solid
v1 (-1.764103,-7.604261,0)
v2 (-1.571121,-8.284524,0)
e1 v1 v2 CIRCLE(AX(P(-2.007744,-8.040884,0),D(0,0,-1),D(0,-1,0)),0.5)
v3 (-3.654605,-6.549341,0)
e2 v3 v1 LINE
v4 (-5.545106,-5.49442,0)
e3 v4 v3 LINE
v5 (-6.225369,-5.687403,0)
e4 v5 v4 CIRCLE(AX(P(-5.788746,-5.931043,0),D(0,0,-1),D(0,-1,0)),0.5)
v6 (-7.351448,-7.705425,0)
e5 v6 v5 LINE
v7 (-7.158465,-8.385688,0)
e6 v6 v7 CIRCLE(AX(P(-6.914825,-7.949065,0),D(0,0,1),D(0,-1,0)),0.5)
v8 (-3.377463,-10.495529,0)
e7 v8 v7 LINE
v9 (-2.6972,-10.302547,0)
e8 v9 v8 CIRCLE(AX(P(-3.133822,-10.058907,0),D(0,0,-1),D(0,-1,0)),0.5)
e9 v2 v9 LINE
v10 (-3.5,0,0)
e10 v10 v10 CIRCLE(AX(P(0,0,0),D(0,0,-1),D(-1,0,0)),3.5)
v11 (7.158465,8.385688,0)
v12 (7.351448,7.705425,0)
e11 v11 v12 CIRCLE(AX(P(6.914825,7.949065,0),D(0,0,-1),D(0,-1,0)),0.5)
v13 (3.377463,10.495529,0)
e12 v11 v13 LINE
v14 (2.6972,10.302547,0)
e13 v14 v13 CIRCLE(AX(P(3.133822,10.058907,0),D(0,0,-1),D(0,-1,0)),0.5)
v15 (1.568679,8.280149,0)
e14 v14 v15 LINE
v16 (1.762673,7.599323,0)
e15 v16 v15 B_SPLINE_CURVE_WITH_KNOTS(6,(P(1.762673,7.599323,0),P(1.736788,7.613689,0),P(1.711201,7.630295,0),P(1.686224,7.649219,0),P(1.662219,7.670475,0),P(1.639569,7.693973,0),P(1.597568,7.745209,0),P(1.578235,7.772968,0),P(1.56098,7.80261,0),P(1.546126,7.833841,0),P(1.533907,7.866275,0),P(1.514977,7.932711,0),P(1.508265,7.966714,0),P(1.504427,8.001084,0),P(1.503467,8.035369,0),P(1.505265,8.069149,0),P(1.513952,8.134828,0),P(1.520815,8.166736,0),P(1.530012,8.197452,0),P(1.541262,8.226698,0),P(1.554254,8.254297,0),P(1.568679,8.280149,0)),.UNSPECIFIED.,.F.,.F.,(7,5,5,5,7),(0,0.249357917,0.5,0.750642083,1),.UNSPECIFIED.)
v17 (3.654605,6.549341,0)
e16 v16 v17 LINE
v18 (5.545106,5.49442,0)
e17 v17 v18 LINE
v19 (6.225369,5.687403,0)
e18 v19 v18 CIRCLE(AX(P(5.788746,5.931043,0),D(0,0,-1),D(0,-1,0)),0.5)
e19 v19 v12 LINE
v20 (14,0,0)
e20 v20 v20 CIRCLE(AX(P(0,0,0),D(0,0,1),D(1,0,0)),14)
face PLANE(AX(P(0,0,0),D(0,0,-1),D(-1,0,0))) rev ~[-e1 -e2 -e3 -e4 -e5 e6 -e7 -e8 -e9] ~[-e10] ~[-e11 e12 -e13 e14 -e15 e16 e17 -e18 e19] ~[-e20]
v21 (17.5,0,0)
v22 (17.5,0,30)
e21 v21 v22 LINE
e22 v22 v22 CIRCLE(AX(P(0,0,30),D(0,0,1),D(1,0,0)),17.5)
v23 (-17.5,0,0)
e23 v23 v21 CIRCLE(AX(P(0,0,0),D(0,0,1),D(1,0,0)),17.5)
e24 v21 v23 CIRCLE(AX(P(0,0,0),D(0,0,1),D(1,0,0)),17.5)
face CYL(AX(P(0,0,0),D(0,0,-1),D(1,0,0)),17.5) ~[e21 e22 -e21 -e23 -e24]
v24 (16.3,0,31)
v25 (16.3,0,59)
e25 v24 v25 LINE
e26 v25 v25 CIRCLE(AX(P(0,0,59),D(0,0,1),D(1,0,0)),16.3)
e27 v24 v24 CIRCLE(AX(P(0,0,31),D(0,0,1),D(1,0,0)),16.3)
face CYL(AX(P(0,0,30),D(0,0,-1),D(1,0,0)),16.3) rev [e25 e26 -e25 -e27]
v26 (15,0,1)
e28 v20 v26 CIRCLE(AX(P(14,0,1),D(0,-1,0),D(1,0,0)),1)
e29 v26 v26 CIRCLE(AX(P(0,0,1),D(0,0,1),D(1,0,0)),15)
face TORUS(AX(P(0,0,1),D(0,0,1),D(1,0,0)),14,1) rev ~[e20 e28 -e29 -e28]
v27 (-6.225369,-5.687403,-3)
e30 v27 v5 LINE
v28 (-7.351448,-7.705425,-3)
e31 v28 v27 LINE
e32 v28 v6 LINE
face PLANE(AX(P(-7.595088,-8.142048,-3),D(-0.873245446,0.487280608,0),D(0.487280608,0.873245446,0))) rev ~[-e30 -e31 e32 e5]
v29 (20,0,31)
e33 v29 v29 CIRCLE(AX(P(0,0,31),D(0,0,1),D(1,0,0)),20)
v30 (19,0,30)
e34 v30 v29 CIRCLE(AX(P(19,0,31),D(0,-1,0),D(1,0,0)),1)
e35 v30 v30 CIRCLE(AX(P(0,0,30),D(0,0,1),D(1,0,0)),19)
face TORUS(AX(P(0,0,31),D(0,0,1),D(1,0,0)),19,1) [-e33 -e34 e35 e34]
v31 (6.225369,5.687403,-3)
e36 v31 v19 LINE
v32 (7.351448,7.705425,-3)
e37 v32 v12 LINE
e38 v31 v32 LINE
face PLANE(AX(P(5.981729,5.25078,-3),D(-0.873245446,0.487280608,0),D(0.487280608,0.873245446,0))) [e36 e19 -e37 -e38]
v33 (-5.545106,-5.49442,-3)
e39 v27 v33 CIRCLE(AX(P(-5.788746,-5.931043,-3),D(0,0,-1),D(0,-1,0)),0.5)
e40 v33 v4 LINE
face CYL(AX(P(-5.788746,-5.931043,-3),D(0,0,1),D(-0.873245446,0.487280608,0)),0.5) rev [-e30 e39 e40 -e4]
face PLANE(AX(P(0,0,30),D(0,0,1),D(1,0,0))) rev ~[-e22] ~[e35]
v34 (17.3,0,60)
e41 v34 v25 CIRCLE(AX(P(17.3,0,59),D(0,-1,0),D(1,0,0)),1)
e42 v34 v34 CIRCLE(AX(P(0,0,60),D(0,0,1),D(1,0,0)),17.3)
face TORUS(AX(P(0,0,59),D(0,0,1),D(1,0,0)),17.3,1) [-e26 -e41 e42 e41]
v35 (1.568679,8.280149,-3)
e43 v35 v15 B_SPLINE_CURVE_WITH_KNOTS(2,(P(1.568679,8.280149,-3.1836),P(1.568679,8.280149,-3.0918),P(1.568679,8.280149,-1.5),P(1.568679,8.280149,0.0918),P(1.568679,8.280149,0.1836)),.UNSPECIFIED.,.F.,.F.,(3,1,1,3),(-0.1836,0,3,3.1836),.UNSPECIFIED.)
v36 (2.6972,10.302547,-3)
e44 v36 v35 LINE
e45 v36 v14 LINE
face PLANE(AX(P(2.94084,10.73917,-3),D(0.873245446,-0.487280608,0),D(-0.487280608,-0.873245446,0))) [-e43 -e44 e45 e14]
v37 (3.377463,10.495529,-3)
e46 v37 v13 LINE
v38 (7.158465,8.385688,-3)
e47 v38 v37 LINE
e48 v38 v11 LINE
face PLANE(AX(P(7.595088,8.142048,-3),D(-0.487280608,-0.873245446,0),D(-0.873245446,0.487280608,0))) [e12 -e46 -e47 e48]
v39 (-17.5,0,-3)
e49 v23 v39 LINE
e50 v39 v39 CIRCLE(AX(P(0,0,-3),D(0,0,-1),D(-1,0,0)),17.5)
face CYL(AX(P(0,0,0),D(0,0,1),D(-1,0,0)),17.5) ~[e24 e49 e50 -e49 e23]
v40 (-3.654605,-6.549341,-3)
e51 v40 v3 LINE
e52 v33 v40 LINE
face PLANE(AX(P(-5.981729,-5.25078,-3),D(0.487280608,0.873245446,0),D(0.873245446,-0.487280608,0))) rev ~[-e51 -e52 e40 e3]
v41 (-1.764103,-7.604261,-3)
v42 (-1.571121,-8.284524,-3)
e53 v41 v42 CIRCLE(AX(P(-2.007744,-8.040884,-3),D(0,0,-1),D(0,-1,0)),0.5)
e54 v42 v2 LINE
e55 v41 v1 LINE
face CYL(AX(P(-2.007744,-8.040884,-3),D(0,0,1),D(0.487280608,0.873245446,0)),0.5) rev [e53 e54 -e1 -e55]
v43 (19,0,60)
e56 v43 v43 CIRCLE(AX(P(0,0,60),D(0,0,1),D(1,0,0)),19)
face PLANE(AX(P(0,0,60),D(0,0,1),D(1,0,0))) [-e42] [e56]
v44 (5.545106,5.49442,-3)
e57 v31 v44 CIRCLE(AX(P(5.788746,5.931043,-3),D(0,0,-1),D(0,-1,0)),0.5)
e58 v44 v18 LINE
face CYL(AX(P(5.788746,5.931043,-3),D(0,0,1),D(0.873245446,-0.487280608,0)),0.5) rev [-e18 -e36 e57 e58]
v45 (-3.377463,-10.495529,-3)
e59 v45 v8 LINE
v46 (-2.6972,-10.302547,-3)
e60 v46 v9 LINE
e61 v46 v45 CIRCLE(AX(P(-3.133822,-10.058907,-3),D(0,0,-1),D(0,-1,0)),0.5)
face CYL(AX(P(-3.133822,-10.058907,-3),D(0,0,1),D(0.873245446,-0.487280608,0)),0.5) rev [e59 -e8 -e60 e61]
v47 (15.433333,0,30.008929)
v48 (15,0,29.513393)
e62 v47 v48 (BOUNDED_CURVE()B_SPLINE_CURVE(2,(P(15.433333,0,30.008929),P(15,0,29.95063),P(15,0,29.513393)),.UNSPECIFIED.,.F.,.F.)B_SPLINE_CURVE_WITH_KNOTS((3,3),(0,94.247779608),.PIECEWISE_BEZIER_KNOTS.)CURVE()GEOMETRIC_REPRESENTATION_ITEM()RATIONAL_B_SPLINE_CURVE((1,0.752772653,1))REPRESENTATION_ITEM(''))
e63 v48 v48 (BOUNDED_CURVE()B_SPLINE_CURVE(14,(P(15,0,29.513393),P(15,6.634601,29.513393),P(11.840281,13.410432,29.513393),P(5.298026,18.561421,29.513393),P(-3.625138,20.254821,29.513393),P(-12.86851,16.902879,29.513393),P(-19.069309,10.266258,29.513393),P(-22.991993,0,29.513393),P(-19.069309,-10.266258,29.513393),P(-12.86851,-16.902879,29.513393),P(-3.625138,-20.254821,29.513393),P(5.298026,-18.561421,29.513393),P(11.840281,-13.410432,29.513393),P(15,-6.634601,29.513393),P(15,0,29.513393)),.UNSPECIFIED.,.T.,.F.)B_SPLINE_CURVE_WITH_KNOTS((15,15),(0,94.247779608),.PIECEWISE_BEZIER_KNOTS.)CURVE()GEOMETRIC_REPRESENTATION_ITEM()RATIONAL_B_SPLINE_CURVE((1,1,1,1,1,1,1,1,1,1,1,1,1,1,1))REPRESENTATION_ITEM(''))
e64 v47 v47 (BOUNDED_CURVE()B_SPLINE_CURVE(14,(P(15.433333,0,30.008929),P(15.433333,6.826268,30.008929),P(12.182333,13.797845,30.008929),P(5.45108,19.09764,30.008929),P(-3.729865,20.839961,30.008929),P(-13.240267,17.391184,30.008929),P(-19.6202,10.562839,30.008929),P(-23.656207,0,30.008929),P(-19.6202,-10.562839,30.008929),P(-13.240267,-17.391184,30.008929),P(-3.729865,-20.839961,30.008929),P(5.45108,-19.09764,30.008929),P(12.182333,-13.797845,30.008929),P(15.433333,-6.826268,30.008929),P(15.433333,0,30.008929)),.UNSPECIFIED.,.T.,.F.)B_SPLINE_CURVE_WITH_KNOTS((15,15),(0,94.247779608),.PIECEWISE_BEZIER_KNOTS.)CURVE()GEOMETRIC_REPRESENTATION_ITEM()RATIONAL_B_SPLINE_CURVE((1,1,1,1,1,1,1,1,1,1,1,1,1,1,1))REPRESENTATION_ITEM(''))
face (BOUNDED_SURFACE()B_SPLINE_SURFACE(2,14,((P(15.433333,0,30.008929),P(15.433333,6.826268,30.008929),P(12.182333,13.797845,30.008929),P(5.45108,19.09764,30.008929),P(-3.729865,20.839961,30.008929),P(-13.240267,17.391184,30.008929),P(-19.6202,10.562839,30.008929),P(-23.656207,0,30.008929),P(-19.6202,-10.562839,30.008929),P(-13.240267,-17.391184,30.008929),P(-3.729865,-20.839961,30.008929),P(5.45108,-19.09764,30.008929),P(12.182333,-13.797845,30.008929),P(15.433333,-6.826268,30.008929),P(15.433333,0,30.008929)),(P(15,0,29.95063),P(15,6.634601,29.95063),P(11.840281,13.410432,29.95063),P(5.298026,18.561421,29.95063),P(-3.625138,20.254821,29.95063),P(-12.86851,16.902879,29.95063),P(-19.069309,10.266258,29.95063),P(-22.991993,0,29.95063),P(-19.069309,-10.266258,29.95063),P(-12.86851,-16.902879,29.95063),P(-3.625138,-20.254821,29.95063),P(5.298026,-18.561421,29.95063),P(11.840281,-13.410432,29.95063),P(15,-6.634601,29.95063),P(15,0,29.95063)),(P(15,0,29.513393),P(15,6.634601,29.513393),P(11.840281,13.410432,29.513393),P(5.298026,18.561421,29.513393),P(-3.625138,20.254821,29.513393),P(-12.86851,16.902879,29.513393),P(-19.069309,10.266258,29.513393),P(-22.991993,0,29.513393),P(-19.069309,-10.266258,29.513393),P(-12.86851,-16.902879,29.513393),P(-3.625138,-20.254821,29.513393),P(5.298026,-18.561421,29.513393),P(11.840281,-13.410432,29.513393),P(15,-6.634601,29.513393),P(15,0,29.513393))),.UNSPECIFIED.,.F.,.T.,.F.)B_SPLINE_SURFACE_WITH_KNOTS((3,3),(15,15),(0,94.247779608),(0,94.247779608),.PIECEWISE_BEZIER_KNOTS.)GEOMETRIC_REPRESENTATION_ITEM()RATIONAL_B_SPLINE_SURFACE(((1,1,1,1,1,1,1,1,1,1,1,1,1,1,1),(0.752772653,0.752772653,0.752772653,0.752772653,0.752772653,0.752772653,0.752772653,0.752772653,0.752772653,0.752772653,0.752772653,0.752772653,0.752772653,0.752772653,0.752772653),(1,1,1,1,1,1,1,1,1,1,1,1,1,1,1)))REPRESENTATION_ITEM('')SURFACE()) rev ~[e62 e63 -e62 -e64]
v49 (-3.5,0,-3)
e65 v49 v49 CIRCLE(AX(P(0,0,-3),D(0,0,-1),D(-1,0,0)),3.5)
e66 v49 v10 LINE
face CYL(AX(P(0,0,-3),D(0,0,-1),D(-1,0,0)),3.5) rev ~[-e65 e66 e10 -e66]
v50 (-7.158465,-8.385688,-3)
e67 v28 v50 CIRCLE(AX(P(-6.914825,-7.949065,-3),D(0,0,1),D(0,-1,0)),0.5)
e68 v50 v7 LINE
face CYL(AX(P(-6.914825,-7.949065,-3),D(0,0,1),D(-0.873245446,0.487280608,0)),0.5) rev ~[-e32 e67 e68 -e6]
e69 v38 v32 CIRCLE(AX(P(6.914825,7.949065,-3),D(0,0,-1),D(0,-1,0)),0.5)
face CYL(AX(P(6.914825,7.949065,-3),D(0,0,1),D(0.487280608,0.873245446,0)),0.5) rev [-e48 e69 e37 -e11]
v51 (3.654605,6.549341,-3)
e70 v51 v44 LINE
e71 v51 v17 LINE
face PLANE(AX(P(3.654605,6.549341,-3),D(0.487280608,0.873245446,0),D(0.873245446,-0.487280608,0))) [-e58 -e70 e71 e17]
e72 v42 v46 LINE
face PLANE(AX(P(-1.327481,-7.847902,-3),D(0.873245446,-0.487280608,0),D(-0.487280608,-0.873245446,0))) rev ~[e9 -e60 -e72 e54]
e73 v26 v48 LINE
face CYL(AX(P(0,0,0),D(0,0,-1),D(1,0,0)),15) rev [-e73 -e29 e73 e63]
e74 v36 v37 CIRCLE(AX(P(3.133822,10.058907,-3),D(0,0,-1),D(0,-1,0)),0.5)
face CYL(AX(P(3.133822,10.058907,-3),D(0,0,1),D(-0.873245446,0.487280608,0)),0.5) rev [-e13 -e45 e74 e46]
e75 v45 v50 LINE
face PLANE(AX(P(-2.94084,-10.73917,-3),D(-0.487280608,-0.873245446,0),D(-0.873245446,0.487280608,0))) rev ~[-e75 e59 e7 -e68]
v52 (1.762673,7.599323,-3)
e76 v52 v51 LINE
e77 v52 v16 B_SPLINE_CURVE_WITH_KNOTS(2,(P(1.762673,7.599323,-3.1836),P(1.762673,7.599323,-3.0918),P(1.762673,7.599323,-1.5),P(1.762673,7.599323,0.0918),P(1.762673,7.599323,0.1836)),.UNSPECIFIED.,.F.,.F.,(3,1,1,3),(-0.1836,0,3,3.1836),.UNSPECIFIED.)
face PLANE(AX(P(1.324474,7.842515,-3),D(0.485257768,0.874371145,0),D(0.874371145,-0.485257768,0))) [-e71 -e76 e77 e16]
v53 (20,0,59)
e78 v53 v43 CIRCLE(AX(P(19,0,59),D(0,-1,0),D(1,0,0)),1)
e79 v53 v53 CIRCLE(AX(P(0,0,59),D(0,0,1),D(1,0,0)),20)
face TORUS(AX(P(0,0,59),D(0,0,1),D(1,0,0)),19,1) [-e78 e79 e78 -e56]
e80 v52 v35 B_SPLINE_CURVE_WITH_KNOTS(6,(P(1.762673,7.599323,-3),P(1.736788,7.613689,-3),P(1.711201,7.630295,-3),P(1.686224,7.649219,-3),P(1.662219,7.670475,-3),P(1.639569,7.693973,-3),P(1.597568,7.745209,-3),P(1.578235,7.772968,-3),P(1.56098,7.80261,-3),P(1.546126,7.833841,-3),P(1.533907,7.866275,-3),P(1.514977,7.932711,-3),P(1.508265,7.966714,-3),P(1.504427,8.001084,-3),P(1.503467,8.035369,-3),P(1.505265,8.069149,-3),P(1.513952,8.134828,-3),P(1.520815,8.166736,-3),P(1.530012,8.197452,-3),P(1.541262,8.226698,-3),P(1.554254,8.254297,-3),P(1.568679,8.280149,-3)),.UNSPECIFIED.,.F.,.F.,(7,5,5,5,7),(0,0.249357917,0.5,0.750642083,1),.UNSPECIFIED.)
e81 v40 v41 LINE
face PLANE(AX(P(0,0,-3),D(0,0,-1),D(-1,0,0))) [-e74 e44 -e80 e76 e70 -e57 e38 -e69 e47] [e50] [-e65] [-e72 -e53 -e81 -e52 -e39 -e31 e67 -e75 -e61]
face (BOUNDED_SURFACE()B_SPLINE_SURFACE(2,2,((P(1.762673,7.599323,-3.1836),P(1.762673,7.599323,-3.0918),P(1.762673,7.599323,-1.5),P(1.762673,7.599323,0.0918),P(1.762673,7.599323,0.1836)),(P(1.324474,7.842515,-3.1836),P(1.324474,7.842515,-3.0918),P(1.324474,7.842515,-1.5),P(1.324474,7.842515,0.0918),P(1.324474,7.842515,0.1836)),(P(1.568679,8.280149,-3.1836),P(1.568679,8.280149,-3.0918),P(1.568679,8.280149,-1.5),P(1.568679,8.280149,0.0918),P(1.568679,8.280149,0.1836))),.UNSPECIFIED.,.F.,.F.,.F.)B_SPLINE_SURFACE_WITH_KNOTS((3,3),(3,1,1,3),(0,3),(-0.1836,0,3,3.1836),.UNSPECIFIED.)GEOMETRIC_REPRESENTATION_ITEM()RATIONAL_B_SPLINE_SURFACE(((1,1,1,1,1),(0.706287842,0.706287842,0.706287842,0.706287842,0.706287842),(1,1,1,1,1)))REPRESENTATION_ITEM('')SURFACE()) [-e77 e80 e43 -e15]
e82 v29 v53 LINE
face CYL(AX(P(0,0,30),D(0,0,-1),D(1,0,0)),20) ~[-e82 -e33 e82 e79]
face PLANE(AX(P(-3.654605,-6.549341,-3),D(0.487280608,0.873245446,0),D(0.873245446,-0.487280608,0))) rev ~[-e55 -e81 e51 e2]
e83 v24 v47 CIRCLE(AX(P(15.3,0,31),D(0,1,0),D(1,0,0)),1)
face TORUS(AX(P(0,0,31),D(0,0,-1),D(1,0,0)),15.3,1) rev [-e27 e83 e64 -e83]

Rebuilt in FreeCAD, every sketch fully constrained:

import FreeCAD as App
import Part
import Sketcher
from FreeCAD import Vector


def edges_at(feature, points):
    """Names of the edges that pass closest to the given points."""
    edges = feature.Shape.Edges
    near = lambda p: min(range(len(edges)), key=lambda i: edges[i].distToShape(Part.Vertex(*p))[0])
    return sorted({f"Edge{near(p) + 1}" for p in points})


def add_polygon(sketch, points):
    """Adds a closed chain of lines whose ends are joined by coincident constraints."""
    first, n = sketch.GeometryCount, len(points)
    for a, b in zip(points, points[1:] + points[:1]):
        sketch.addGeometry(Part.LineSegment(App.Vector(*a, 0), App.Vector(*b, 0)), False)
    for i in range(n):
        sketch.addConstraint(Sketcher.Constraint("Coincident", first + i, 2, first + (i + 1) % n, 1))

doc = App.newDocument("Part")
body = doc.addObject("PartDesign::Body", "Body")

# Sketch on XY plane
sketch1 = doc.addObject("Sketcher::SketchObject", "Sketch")
body.addObject(sketch1)
sketch1.AttachmentSupport = (doc.XY_Plane, [""])
sketch1.MapMode = "FlatFace"
sketch1.addGeometry([
    Part.Circle(Vector(0, 0, 0), Vector(0, 0, 1), 17.5),
    Part.Circle(Vector(0, 0, 0), Vector(0, 0, 1), 15),
], False)
sketch1.addConstraint([
    Sketcher.Constraint("Coincident", 0, 3, -1, 1),
    Sketcher.Constraint("Coincident", 1, 3, -1, 1),
    Sketcher.Constraint("Diameter", 0, 35.0),
    Sketcher.Constraint("Diameter", 1, 30.0),
])
pad1 = doc.addObject("PartDesign::Pad", "Pad")
body.addObject(pad1)
pad1.Profile = sketch1
pad1.Length = 30

# Sketch on XY plane
sketch2 = doc.addObject("Sketcher::SketchObject", "Sketch001")
body.addObject(sketch2)
sketch2.AttachmentSupport = (doc.XY_Plane, [""])
sketch2.MapMode = "FlatFace"
sketch2.AttachmentOffset = App.Placement(Vector(0, 0, 30), App.Rotation())
sketch2.addGeometry([
    Part.Circle(Vector(0, 0, 0), Vector(0, 0, 1), 20),
    Part.Circle(Vector(0, 0, 0), Vector(0, 0, 1), 16.3),
], False)
sketch2.addConstraint([
    Sketcher.Constraint("Coincident", 0, 3, -1, 1),
    Sketcher.Constraint("Coincident", 1, 3, -1, 1),
    Sketcher.Constraint("Diameter", 0, 40.0),
    Sketcher.Constraint("Diameter", 1, 32.6),
])
pad2 = doc.addObject("PartDesign::Pad", "Pad001")
body.addObject(pad2)
pad2.Profile = sketch2
pad2.Length = 30

# Sketch on XY plane
sketch3 = doc.addObject("Sketcher::SketchObject", "Sketch002")
body.addObject(sketch3)
sketch3.AttachmentSupport = (doc.XY_Plane, [""])
sketch3.MapMode = "FlatFace"
sketch3.addGeometry(Part.Circle(Vector(0, 0, 0), Vector(0, 0, 1), 17.5), False)
sketch3.addConstraint([
    Sketcher.Constraint("Coincident", 0, 3, -1, 1),
    Sketcher.Constraint("Diameter", 0, 35.0),
])
pad3 = doc.addObject("PartDesign::Pad", "Pad002")
body.addObject(pad3)
pad3.Profile = sketch3
pad3.Length = 3
pad3.Reversed = True

# Sketch on XY plane
sketch4 = doc.addObject("Sketcher::SketchObject", "Sketch003")
body.addObject(sketch4)
sketch4.AttachmentSupport = (doc.XY_Plane, [""])
sketch4.MapMode = "FlatFace"
sketch4.AttachmentOffset = App.Placement(Vector(0, 0, -3), App.Rotation())
add_polygon(sketch4, [(-7.595088, -8.142048), (-5.981729, -5.25078), (-3.654605, -6.549341), (-1.327481, -7.847902), (-2.94084, -10.73917)])  # lines 0-4
add_polygon(sketch4, [(1.324474, 7.842515), (1.327481, 7.847902), (2.94084, 10.73917), (7.595088, 8.142048), (5.981729, 5.25078), (3.654605, 6.549341)])  # lines 5-10
sketch4.addConstraint([
    Sketcher.Constraint("Symmetric", 2, 2, 5, 2, -1, 1),
    Sketcher.Constraint("Symmetric", 3, 2, 6, 2, -1, 1),
    Sketcher.Constraint("Symmetric", 4, 2, 7, 2, -1, 1),
    Sketcher.Constraint("Symmetric", 0, 2, 8, 2, -1, 1),
    Sketcher.Constraint("Symmetric", 1, 2, 9, 2, -1, 1),
    Sketcher.Constraint("Perpendicular", 0, 1),
    Sketcher.Constraint("Parallel", 1, 2),
    Sketcher.Constraint("Perpendicular", 2, 3),
    Sketcher.Constraint("Perpendicular", 3, 4),
    Sketcher.Constraint("Perpendicular", 4, 5),
    Sketcher.Constraint("Equal", 1, 2),
    Sketcher.Constraint("DistanceY", 2, 2, -1, 1, 7.847902),
    Sketcher.Constraint("Distance", 4, 5.329828),
    Sketcher.Constraint("Distance", 5, 0.006169),
    Sketcher.Constraint("DistanceX", 0, 2, -1, 1, 5.981729),
    Sketcher.Constraint("DistanceY", 0, 2, -1, 1, 5.25078),
    Sketcher.Constraint("DistanceX", 3, 2, -1, 1, 2.94084),
])
pocket1 = doc.addObject("PartDesign::Pocket", "Pocket")
body.addObject(pocket1)
pocket1.Profile = sketch4
pocket1.Type = "ThroughAll"
pocket1.Reversed = True
doc.recompute()

fillet = doc.addObject("PartDesign::Fillet", "Fillet")
body.addObject(fillet)
fillet.Base = (pocket1, edges_at(pocket1, [
    (-5.982, -5.251, -1.5),
    (-7.595, -8.142, -1.5),
    (-2.941, -10.739, -1.5),
    (-1.327, -7.848, -1.5),
    (2.941, 10.739, -1.5),
    (1.324, 7.843, -1.5),
    (5.982, 5.251, -1.5),
    (7.595, 8.142, -1.5),
]))
fillet.Radius = 0.5

# Sketch on XY plane
sketch5 = doc.addObject("Sketcher::SketchObject", "Sketch004")
body.addObject(sketch5)
sketch5.AttachmentSupport = (doc.XY_Plane, [""])
sketch5.MapMode = "FlatFace"
sketch5.AttachmentOffset = App.Placement(Vector(0, 0, -3), App.Rotation())
sketch5.addGeometry(Part.Circle(Vector(0, 0, 0), Vector(0, 0, 1), 3.5), False)
sketch5.addConstraint([
    Sketcher.Constraint("Coincident", 0, 3, -1, 1),
    Sketcher.Constraint("Diameter", 0, 7.0),
])
pocket2 = doc.addObject("PartDesign::Pocket", "Pocket001")
body.addObject(pocket2)
pocket2.Profile = sketch5
pocket2.Type = "ThroughAll"
pocket2.Reversed = True
doc.recompute()

fillet2 = doc.addObject("PartDesign::Fillet", "Fillet001")
body.addObject(fillet2)
fillet2.Base = (pocket2, edges_at(pocket2, [(-20, 0, 60), (-20, 0, 30)]))
fillet2.Radius = 1
doc.recompute()

fillet3 = doc.addObject("PartDesign::Fillet", "Fillet002")
body.addObject(fillet3)
fillet3.Base = (fillet2, edges_at(fillet2, [(-16.3, 0, 30), (-16.3, 0, 60), (-15, 0, 0)]))
fillet3.Radius = 1
doc.recompute()

fillet4 = doc.addObject("PartDesign::Fillet", "Fillet003")
body.addObject(fillet4)
fillet4.Base = (fillet3, edges_at(fillet3, [(-15, 0, 30)]))
fillet4.Radius = 0.5

doc.recompute()
